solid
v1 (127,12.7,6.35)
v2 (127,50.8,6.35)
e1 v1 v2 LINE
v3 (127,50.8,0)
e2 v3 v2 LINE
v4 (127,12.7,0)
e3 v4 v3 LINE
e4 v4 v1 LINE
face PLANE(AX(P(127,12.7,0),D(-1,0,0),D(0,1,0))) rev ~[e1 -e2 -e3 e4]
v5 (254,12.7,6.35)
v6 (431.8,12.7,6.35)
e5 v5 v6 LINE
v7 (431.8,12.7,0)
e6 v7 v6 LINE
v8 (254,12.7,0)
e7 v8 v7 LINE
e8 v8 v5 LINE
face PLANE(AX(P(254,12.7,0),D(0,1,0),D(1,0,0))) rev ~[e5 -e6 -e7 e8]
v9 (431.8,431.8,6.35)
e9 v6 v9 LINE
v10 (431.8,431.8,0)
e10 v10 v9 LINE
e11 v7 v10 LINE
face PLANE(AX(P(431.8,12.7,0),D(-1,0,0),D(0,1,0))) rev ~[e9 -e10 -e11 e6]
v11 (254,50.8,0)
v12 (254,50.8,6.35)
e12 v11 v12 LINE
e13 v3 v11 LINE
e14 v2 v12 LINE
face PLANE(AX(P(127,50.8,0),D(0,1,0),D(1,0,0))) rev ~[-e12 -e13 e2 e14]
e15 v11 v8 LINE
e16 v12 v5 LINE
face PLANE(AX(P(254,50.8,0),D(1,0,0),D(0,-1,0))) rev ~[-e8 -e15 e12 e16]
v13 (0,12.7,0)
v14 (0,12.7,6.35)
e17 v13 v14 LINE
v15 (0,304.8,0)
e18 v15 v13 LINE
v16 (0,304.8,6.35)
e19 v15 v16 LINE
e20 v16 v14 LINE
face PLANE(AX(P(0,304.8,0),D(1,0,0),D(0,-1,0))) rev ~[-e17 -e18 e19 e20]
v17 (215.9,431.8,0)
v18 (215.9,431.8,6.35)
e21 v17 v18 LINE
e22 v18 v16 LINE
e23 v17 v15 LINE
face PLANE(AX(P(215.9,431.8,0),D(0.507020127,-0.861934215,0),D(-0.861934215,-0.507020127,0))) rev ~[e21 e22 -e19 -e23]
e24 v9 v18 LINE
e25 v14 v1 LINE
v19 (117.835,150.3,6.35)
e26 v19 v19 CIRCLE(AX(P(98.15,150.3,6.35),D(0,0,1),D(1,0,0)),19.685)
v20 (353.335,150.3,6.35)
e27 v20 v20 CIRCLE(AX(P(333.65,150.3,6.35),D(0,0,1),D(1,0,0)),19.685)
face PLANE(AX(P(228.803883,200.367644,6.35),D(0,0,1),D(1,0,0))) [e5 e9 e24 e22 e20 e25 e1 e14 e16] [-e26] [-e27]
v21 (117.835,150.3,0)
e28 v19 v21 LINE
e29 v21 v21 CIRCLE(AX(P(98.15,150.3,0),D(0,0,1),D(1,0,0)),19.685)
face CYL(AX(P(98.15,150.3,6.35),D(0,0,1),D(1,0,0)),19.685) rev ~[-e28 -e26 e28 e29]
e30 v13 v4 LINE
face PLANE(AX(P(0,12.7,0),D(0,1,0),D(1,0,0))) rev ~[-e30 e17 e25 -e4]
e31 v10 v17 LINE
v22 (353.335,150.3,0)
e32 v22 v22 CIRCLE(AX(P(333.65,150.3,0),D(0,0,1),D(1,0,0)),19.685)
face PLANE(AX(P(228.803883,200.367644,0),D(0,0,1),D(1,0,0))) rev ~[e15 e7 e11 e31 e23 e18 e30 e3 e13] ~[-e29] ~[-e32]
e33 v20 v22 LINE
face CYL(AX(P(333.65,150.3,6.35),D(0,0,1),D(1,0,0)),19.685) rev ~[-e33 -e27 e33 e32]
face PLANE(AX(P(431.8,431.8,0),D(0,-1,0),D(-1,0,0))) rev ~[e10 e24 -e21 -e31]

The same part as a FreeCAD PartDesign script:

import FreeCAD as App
import Part
import Sketcher
from FreeCAD import Vector
Q = App.Units.Quantity

doc = App.newDocument("Part")
params = doc.addObject("Spreadsheet::Sheet", "Params")
for row, (alias, value) in enumerate([
    ("sketch1_width", "5 in"),
    ("sketch1_width2", "7 in"),
    ("sketch1_width3", "8.5 in"),
    ("sketch1_height", "11.5 in"),
    ("sketch1_height2", "1.5 in"),
    ("pad1_length", "0.25 in"),
    ("sketch2_diameter", "1.55 in"),
], start=1):
    params.set(f"A{row}", alias)
    params.set(f"B{row}", "=" + value)
    params.setAlias(f"B{row}", alias)

body = doc.addObject("PartDesign::Body", "Body")

# Sketch on XY plane
sketch1 = body.newObject("Sketcher::SketchObject", "Sketch")
sketch1.AttachmentSupport = (doc.getObject("XY_Plane"), [""])
sketch1.MapMode = "FlatFace"
sketch1.addGeometry([
    Part.LineSegment(Vector(0, 304.8, 0), Vector(0, 12.7, 0)),  # 0
    Part.LineSegment(Vector(0, 12.7, 0), Vector(127, 12.7, 0)),  # 1
    Part.LineSegment(Vector(127, 12.7, 0), Vector(127, 50.8, 0)),  # 2
    Part.LineSegment(Vector(127, 50.8, 0), Vector(254, 50.8, 0)),  # 3
    Part.LineSegment(Vector(254, 50.8, 0), Vector(254, 12.7, 0)),  # 4
    Part.LineSegment(Vector(254, 12.7, 0), Vector(431.8, 12.7, 0)),  # 5
    Part.LineSegment(Vector(431.8, 12.7, 0), Vector(431.8, 431.8, 0)),  # 6
    Part.LineSegment(Vector(431.8, 431.8, 0), Vector(215.9, 431.8, 0)),  # 7
    Part.LineSegment(Vector(215.9, 431.8, 0), Vector(0, 304.8, 0)),  # 8
], False)
sketch1.addConstraint([
    Sketcher.Constraint("Coincident", 0, 2, 1, 1),
    Sketcher.Constraint("Coincident", 1, 2, 2, 1),
    Sketcher.Constraint("Coincident", 2, 2, 3, 1),
    Sketcher.Constraint("Coincident", 3, 2, 4, 1),
    Sketcher.Constraint("Coincident", 4, 2, 5, 1),
    Sketcher.Constraint("Coincident", 5, 2, 6, 1),
    Sketcher.Constraint("Coincident", 6, 2, 7, 1),
    Sketcher.Constraint("Coincident", 7, 2, 8, 1),
    Sketcher.Constraint("Coincident", 8, 2, 0, 1),
    Sketcher.Constraint("Vertical", 0),
    Sketcher.Constraint("Horizontal", 1),
    Sketcher.Constraint("Vertical", 2),
    Sketcher.Constraint("Horizontal", 3),
    Sketcher.Constraint("Vertical", 4),
    Sketcher.Constraint("Horizontal", 5),
    Sketcher.Constraint("Vertical", 6),
    Sketcher.Constraint("Horizontal", 7),
    Sketcher.Constraint("PointOnObject", 0, 2, -2),
    Sketcher.Constraint("Horizontal", 1, 2, 4, 2),
    Sketcher.Constraint("Equal", 1, 3),
    Sketcher.Constraint("DistanceX", 1, 1, 1, 2, Q("5 in")),
    Sketcher.Constraint("DistanceX", 5, 1, 5, 2, Q("7 in")),
    Sketcher.Constraint("DistanceX", 7, 2, 7, 1, Q("8.5 in")),
    Sketcher.Constraint("DistanceY", 0, 2, 0, 1, Q("11.5 in")),
    Sketcher.Constraint("DistanceY", 2, 1, 2, 2, Q("1.5 in")),
    Sketcher.Constraint("DistanceY", 6, 1, 6, 2, Q("16.5 in")),
    Sketcher.Constraint("DistanceY", -1, 1, 2, 2, Q("2 in")),
])
sketch1.setExpression("Constraints[20]", "Params.sketch1_width")
sketch1.setExpression("Constraints[21]", "Params.sketch1_width2")
sketch1.setExpression("Constraints[22]", "Params.sketch1_width3")
sketch1.setExpression("Constraints[23]", "Params.sketch1_height")
sketch1.setExpression("Constraints[24]", "Params.sketch1_height2")
pad1 = body.newObject("PartDesign::Pad", "Pad")
pad1.Profile = sketch1
pad1.setExpression("Length", "Params.pad1_length")

# Sketch on XY plane
sketch2 = body.newObject("Sketcher::SketchObject", "Sketch001")
sketch2.AttachmentSupport = (doc.getObject("XY_Plane"), [""])
sketch2.MapMode = "FlatFace"
sketch2.AttachmentOffset = App.Placement(Vector(0, 0, 0.25 * 25.4), App.Rotation())
sketch2.addGeometry([
    Part.Circle(Vector(98.15, 150.3, 0), Vector(0, 0, 1), 19.685),
    Part.Circle(Vector(333.65, 150.3, 0), Vector(0, 0, 1), 19.685),
], False)
sketch2.addConstraint([
    Sketcher.Constraint("Equal", 0, 1),
    Sketcher.Constraint("Horizontal", 0, 3, 1, 3),
    Sketcher.Constraint("Diameter", 0, Q("1.55 in")),
    Sketcher.Constraint("DistanceX", -1, 1, 0, 3, Q("98.15 mm")),
    Sketcher.Constraint("DistanceY", -1, 1, 0, 3, Q("150.3 mm")),
    Sketcher.Constraint("DistanceX", -1, 1, 1, 3, Q("333.65 mm")),
])
sketch2.setExpression("Constraints[2]", "Params.sketch2_diameter")
pocket1 = body.newObject("PartDesign::Pocket", "Pocket")
pocket1.Profile = sketch2
pocket1.Type = "ThroughAll"

doc.recompute()
